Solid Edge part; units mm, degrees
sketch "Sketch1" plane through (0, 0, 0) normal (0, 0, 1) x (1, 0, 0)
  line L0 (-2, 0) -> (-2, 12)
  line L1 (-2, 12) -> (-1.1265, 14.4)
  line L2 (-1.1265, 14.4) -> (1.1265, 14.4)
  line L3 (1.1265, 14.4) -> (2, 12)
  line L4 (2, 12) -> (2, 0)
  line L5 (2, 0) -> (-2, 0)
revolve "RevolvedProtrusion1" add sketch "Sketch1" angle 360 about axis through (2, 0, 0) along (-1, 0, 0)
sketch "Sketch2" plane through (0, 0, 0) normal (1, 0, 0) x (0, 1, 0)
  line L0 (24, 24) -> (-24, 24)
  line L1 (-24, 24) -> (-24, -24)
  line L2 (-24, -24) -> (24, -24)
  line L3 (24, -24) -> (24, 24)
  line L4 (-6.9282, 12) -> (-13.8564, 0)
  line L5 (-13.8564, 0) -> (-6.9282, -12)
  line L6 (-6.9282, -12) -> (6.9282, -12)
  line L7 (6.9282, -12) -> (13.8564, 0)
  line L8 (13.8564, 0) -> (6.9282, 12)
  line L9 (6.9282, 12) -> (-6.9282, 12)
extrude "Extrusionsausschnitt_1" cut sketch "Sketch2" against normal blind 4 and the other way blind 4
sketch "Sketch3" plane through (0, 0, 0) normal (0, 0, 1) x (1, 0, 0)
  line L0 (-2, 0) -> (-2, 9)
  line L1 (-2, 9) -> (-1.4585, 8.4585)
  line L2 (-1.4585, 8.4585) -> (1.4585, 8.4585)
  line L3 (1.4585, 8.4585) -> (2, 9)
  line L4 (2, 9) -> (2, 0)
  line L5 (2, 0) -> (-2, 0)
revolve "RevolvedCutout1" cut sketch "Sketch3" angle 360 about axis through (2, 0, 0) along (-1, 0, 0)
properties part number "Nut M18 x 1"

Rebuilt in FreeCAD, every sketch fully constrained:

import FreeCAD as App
import Part
import Sketcher
Q = App.Units.Quantity

doc = App.newDocument("Part")
body = doc.addObject("PartDesign::Body", "Body")

# Sketch on XY plane
sketch1 = doc.addObject("Sketcher::SketchObject", "Sketch")
body.addObject(sketch1)
sketch1.AttachmentSupport = (doc.XY_Plane, [""])
sketch1.MapMode = "FlatFace"
sketch1.addGeometry([
    Part.LineSegment(App.Vector(-2, 12, 0), App.Vector(-2, 0, 0)),  # 0
    Part.LineSegment(App.Vector(-2, 0, 0), App.Vector(2, 0, 0)),  # 1
    Part.LineSegment(App.Vector(2, 0, 0), App.Vector(2, 12, 0)),  # 2
    Part.LineSegment(App.Vector(2, 12, 0), App.Vector(1.1265, 14.4, 0)),  # 3
    Part.LineSegment(App.Vector(1.1265, 14.4, 0), App.Vector(-1.1265, 14.4, 0)),  # 4
    Part.LineSegment(App.Vector(-1.1265, 14.4, 0), App.Vector(-2, 12, 0)),  # 5
], False)
sketch1.addConstraint([
    Sketcher.Constraint("Coincident", 0, 2, 1, 1),
    Sketcher.Constraint("Coincident", 1, 2, 2, 1),
    Sketcher.Constraint("Coincident", 2, 2, 3, 1),
    Sketcher.Constraint("Coincident", 3, 2, 4, 1),
    Sketcher.Constraint("Coincident", 4, 2, 5, 1),
    Sketcher.Constraint("Coincident", 5, 2, 0, 1),
    Sketcher.Constraint("Vertical", 0),
    Sketcher.Constraint("Horizontal", 1),
    Sketcher.Constraint("Vertical", 2),
    Sketcher.Constraint("Horizontal", 4),
    Sketcher.Constraint("Symmetric", 0, 2, 1, 2, -1, 1),
    Sketcher.Constraint("Horizontal", 2, 2, 5, 2),
    Sketcher.Constraint("Equal", 3, 5),
    Sketcher.Constraint("DistanceX", 1, 1, 1, 2, 4.0),
    Sketcher.Constraint("DistanceY", 0, 2, 0, 1, 12.0),
    Sketcher.Constraint("Angle", 3, Q("109.9994 deg")),
    Sketcher.Constraint("DistanceY", -1, 1, 3, 2, 14.4),
])
revolution = doc.addObject("PartDesign::Revolution", "Revolution")
body.addObject(revolution)
revolution.Profile = sketch1
revolution.ReferenceAxis = (sketch1, ["H_Axis"])
revolution.Angle = 360

# Sketch on YZ plane
sketch2 = doc.addObject("Sketcher::SketchObject", "Sketch001")
body.addObject(sketch2)
sketch2.AttachmentSupport = (doc.YZ_Plane, [""])
sketch2.MapMode = "FlatFace"
sketch2.addGeometry([
    Part.LineSegment(App.Vector(24, -24, 0), App.Vector(24, 24, 0)),  # 0
    Part.LineSegment(App.Vector(24, 24, 0), App.Vector(-24, 24, 0)),  # 1
    Part.LineSegment(App.Vector(-24, 24, 0), App.Vector(-24, -24, 0)),  # 2
    Part.LineSegment(App.Vector(-24, -24, 0), App.Vector(24, -24, 0)),  # 3
    Part.LineSegment(App.Vector(-13.8564, 0, 0), App.Vector(-6.9282, 12, 0)),  # 4
    Part.LineSegment(App.Vector(-6.9282, 12, 0), App.Vector(6.9282, 12, 0)),  # 5
    Part.LineSegment(App.Vector(6.9282, 12, 0), App.Vector(13.8564, 0, 0)),  # 6
    Part.LineSegment(App.Vector(13.8564, 0, 0), App.Vector(6.9282, -12, 0)),  # 7
    Part.LineSegment(App.Vector(6.9282, -12, 0), App.Vector(-6.9282, -12, 0)),  # 8
    Part.LineSegment(App.Vector(-6.9282, -12, 0), App.Vector(-13.8564, 0, 0)),  # 9
], False)
sketch2.addConstraint([
    Sketcher.Constraint("Coincident", 0, 2, 1, 1),
    Sketcher.Constraint("Coincident", 1, 2, 2, 1),
    Sketcher.Constraint("Coincident", 2, 2, 3, 1),
    Sketcher.Constraint("Coincident", 3, 2, 0, 1),
    Sketcher.Constraint("Coincident", 4, 2, 5, 1),
    Sketcher.Constraint("Coincident", 5, 2, 6, 1),
    Sketcher.Constraint("Coincident", 6, 2, 7, 1),
    Sketcher.Constraint("Coincident", 7, 2, 8, 1),
    Sketcher.Constraint("Coincident", 8, 2, 9, 1),
    Sketcher.Constraint("Coincident", 9, 2, 4, 1),
    Sketcher.Constraint("Vertical", 0),
    Sketcher.Constraint("Horizontal", 1),
    Sketcher.Constraint("Vertical", 2),
    Sketcher.Constraint("Horizontal", 3),
    Sketcher.Constraint("Horizontal", 5),
    Sketcher.Constraint("Horizontal", 8),
    Sketcher.Constraint("Symmetric", 0, 2, 2, 2, -1, 1),
    Sketcher.Constraint("Symmetric", 4, 2, 7, 2, -1, 1),
    Sketcher.Constraint("Symmetric", 6, 2, 9, 2, -1, 1),
    Sketcher.Constraint("PointOnObject", 6, 2, -1),
    Sketcher.Constraint("Parallel", 6, 9),
    Sketcher.Constraint("Vertical", 5, 2, 7, 2),
    Sketcher.Constraint("Equal", 3, 0),
    Sketcher.Constraint("DistanceX", 1, 2, 1, 1, 48.0),
    Sketcher.Constraint("Angle", 4, Q("60 deg")),
    Sketcher.Constraint("DistanceY", -1, 1, 4, 2, 12.0),
    Sketcher.Constraint("DistanceX", 5, 1, 5, 2, 13.8564),
])
pocket1 = doc.addObject("PartDesign::Pocket", "Pocket")
body.addObject(pocket1)
pocket1.Profile = sketch2
pocket1.Type = "ThroughAll"
pocket1.Midplane = True

# Sketch on XY plane
sketch3 = doc.addObject("Sketcher::SketchObject", "Sketch002")
body.addObject(sketch3)
sketch3.AttachmentSupport = (doc.XY_Plane, [""])
sketch3.MapMode = "FlatFace"
sketch3.addGeometry([
    Part.LineSegment(App.Vector(-2, 9, 0), App.Vector(-2, 0, 0)),  # 0
    Part.LineSegment(App.Vector(-2, 0, 0), App.Vector(2, 0, 0)),  # 1
    Part.LineSegment(App.Vector(2, 0, 0), App.Vector(2, 9, 0)),  # 2
    Part.LineSegment(App.Vector(2, 9, 0), App.Vector(1.4585, 8.4585, 0)),  # 3
    Part.LineSegment(App.Vector(1.4585, 8.4585, 0), App.Vector(-1.4585, 8.4585, 0)),  # 4
    Part.LineSegment(App.Vector(-1.4585, 8.4585, 0), App.Vector(-2, 9, 0)),  # 5
], False)
sketch3.addConstraint([
    Sketcher.Constraint("Coincident", 0, 2, 1, 1),
    Sketcher.Constraint("Coincident", 1, 2, 2, 1),
    Sketcher.Constraint("Coincident", 2, 2, 3, 1),
    Sketcher.Constraint("Coincident", 3, 2, 4, 1),
    Sketcher.Constraint("Coincident", 4, 2, 5, 1),
    Sketcher.Constraint("Coincident", 5, 2, 0, 1),
    Sketcher.Constraint("Vertical", 0),
    Sketcher.Constraint("Horizontal", 1),
    Sketcher.Constraint("Vertical", 2),
    Sketcher.Constraint("Horizontal", 4),
    Sketcher.Constraint("Symmetric", 0, 2, 1, 2, -1, 1),
    Sketcher.Constraint("Perpendicular", 3, 5),
    Sketcher.Constraint("Horizontal", 2, 2, 5, 2),
    Sketcher.Constraint("Equal", 3, 5),
    Sketcher.Constraint("DistanceX", 1, 1, 1, 2, 4.0),
    Sketcher.Constraint("DistanceY", 0, 2, 0, 1, 9.0),
    Sketcher.Constraint("DistanceX", 4, 2, 4, 1, 2.917),
])
groove = doc.addObject("PartDesign::Groove", "Groove")
body.addObject(groove)
groove.Profile = sketch3
groove.ReferenceAxis = (sketch3, ["H_Axis"])
groove.Angle = 360

doc.recompute()
